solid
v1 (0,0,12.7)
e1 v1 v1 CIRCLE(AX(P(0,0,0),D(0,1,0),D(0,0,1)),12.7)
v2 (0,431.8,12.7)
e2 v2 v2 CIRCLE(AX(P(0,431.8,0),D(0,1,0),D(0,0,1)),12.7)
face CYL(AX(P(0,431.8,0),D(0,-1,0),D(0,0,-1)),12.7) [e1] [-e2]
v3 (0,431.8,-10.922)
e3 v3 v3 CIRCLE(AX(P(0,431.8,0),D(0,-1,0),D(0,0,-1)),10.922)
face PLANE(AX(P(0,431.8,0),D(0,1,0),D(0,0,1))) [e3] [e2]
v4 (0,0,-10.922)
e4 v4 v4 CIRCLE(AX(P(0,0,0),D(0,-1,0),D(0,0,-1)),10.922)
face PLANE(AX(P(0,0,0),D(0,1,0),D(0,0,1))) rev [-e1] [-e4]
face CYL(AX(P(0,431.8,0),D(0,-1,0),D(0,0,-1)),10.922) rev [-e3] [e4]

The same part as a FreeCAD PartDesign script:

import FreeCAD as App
import Part
import Sketcher

V = App.Vector
Q = App.Units.Quantity

doc = App.newDocument("Part")
body = doc.addObject("PartDesign::Body", "Body")

sketch1 = body.newObject("Sketcher::SketchObject", "Sketch")
sketch1.AttachmentSupport = (doc.getObject("XZ_Plane"), [""])
sketch1.MapMode = "FlatFace"
sketch1.addGeometry(Part.Circle(V(0, 0, 0), V(0, 0, 1), 12.7), False)
sketch1.addConstraint([
    Sketcher.Constraint("Coincident", 0, 3, -1, 1),
    Sketcher.Constraint("Diameter", 0, Q("1 in")),
])
pad1 = body.newObject("PartDesign::Pad", "Pad")
pad1.Profile = sketch1
pad1.Length = Q("17 in")
pad1.Reversed = True

sketch2 = body.newObject("Sketcher::SketchObject", "Sketch001")
sketch2.AttachmentSupport = (doc.getObject("XZ_Plane"), [""])
sketch2.MapMode = "FlatFace"
sketch2.addGeometry(Part.Circle(V(0, 0, 0), V(0, 0, 1), 10.922), False)
sketch2.addConstraint([
    Sketcher.Constraint("Coincident", 0, 3, -1, 1),
    Sketcher.Constraint("Diameter", 0, Q("0.86 in")),
])
pocket1 = body.newObject("PartDesign::Pocket", "Pocket")
pocket1.Profile = sketch2
pocket1.Type = "ThroughAll"

doc.recompute()
